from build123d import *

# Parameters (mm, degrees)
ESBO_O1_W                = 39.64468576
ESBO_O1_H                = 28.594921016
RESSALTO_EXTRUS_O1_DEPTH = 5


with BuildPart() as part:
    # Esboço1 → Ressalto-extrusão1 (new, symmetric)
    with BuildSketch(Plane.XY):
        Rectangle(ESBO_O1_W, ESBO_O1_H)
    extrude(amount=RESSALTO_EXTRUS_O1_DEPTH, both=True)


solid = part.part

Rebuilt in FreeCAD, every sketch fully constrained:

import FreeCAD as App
import Part
import Sketcher
from FreeCAD import Vector

doc = App.newDocument("Part")
body = doc.addObject("PartDesign::Body", "Body")

# Sketch on XY plane
sketch1 = body.newObject("Sketcher::SketchObject", "Sketch")
sketch1.AttachmentSupport = (doc.getObject("XY_Plane"), [""])
sketch1.MapMode = "FlatFace"
sketch1.addGeometry([
    Part.LineSegment(Vector(-19.822343, 14.297461, 0), Vector(-19.822343, -14.297461, 0)),
    Part.LineSegment(Vector(-19.822343, -14.297461, 0), Vector(19.822343, -14.297461, 0)),
    Part.LineSegment(Vector(19.822343, -14.297461, 0), Vector(19.822343, 14.297461, 0)),
    Part.LineSegment(Vector(19.822343, 14.297461, 0), Vector(-19.822343, 14.297461, 0)),
], False)
sketch1.addConstraint([
    Sketcher.Constraint("Coincident", 0, 2, 1, 1),
    Sketcher.Constraint("Coincident", 1, 2, 2, 1),
    Sketcher.Constraint("Coincident", 2, 2, 3, 1),
    Sketcher.Constraint("Coincident", 3, 2, 0, 1),
    Sketcher.Constraint("Vertical", 0),
    Sketcher.Constraint("Horizontal", 1),
    Sketcher.Constraint("Vertical", 2),
    Sketcher.Constraint("Horizontal", 3),
    Sketcher.Constraint("Symmetric", 0, 2, 2, 2, -1, 1),
    Sketcher.Constraint("DistanceY", 0, 2, 0, 1, 28.594921),
    Sketcher.Constraint("DistanceX", 1, 1, 1, 2, 39.644686),
])
pad1 = body.newObject("PartDesign::Pad", "Pad")
pad1.Profile = sketch1
pad1.Length = 10
pad1.Midplane = True

doc.recompute()
